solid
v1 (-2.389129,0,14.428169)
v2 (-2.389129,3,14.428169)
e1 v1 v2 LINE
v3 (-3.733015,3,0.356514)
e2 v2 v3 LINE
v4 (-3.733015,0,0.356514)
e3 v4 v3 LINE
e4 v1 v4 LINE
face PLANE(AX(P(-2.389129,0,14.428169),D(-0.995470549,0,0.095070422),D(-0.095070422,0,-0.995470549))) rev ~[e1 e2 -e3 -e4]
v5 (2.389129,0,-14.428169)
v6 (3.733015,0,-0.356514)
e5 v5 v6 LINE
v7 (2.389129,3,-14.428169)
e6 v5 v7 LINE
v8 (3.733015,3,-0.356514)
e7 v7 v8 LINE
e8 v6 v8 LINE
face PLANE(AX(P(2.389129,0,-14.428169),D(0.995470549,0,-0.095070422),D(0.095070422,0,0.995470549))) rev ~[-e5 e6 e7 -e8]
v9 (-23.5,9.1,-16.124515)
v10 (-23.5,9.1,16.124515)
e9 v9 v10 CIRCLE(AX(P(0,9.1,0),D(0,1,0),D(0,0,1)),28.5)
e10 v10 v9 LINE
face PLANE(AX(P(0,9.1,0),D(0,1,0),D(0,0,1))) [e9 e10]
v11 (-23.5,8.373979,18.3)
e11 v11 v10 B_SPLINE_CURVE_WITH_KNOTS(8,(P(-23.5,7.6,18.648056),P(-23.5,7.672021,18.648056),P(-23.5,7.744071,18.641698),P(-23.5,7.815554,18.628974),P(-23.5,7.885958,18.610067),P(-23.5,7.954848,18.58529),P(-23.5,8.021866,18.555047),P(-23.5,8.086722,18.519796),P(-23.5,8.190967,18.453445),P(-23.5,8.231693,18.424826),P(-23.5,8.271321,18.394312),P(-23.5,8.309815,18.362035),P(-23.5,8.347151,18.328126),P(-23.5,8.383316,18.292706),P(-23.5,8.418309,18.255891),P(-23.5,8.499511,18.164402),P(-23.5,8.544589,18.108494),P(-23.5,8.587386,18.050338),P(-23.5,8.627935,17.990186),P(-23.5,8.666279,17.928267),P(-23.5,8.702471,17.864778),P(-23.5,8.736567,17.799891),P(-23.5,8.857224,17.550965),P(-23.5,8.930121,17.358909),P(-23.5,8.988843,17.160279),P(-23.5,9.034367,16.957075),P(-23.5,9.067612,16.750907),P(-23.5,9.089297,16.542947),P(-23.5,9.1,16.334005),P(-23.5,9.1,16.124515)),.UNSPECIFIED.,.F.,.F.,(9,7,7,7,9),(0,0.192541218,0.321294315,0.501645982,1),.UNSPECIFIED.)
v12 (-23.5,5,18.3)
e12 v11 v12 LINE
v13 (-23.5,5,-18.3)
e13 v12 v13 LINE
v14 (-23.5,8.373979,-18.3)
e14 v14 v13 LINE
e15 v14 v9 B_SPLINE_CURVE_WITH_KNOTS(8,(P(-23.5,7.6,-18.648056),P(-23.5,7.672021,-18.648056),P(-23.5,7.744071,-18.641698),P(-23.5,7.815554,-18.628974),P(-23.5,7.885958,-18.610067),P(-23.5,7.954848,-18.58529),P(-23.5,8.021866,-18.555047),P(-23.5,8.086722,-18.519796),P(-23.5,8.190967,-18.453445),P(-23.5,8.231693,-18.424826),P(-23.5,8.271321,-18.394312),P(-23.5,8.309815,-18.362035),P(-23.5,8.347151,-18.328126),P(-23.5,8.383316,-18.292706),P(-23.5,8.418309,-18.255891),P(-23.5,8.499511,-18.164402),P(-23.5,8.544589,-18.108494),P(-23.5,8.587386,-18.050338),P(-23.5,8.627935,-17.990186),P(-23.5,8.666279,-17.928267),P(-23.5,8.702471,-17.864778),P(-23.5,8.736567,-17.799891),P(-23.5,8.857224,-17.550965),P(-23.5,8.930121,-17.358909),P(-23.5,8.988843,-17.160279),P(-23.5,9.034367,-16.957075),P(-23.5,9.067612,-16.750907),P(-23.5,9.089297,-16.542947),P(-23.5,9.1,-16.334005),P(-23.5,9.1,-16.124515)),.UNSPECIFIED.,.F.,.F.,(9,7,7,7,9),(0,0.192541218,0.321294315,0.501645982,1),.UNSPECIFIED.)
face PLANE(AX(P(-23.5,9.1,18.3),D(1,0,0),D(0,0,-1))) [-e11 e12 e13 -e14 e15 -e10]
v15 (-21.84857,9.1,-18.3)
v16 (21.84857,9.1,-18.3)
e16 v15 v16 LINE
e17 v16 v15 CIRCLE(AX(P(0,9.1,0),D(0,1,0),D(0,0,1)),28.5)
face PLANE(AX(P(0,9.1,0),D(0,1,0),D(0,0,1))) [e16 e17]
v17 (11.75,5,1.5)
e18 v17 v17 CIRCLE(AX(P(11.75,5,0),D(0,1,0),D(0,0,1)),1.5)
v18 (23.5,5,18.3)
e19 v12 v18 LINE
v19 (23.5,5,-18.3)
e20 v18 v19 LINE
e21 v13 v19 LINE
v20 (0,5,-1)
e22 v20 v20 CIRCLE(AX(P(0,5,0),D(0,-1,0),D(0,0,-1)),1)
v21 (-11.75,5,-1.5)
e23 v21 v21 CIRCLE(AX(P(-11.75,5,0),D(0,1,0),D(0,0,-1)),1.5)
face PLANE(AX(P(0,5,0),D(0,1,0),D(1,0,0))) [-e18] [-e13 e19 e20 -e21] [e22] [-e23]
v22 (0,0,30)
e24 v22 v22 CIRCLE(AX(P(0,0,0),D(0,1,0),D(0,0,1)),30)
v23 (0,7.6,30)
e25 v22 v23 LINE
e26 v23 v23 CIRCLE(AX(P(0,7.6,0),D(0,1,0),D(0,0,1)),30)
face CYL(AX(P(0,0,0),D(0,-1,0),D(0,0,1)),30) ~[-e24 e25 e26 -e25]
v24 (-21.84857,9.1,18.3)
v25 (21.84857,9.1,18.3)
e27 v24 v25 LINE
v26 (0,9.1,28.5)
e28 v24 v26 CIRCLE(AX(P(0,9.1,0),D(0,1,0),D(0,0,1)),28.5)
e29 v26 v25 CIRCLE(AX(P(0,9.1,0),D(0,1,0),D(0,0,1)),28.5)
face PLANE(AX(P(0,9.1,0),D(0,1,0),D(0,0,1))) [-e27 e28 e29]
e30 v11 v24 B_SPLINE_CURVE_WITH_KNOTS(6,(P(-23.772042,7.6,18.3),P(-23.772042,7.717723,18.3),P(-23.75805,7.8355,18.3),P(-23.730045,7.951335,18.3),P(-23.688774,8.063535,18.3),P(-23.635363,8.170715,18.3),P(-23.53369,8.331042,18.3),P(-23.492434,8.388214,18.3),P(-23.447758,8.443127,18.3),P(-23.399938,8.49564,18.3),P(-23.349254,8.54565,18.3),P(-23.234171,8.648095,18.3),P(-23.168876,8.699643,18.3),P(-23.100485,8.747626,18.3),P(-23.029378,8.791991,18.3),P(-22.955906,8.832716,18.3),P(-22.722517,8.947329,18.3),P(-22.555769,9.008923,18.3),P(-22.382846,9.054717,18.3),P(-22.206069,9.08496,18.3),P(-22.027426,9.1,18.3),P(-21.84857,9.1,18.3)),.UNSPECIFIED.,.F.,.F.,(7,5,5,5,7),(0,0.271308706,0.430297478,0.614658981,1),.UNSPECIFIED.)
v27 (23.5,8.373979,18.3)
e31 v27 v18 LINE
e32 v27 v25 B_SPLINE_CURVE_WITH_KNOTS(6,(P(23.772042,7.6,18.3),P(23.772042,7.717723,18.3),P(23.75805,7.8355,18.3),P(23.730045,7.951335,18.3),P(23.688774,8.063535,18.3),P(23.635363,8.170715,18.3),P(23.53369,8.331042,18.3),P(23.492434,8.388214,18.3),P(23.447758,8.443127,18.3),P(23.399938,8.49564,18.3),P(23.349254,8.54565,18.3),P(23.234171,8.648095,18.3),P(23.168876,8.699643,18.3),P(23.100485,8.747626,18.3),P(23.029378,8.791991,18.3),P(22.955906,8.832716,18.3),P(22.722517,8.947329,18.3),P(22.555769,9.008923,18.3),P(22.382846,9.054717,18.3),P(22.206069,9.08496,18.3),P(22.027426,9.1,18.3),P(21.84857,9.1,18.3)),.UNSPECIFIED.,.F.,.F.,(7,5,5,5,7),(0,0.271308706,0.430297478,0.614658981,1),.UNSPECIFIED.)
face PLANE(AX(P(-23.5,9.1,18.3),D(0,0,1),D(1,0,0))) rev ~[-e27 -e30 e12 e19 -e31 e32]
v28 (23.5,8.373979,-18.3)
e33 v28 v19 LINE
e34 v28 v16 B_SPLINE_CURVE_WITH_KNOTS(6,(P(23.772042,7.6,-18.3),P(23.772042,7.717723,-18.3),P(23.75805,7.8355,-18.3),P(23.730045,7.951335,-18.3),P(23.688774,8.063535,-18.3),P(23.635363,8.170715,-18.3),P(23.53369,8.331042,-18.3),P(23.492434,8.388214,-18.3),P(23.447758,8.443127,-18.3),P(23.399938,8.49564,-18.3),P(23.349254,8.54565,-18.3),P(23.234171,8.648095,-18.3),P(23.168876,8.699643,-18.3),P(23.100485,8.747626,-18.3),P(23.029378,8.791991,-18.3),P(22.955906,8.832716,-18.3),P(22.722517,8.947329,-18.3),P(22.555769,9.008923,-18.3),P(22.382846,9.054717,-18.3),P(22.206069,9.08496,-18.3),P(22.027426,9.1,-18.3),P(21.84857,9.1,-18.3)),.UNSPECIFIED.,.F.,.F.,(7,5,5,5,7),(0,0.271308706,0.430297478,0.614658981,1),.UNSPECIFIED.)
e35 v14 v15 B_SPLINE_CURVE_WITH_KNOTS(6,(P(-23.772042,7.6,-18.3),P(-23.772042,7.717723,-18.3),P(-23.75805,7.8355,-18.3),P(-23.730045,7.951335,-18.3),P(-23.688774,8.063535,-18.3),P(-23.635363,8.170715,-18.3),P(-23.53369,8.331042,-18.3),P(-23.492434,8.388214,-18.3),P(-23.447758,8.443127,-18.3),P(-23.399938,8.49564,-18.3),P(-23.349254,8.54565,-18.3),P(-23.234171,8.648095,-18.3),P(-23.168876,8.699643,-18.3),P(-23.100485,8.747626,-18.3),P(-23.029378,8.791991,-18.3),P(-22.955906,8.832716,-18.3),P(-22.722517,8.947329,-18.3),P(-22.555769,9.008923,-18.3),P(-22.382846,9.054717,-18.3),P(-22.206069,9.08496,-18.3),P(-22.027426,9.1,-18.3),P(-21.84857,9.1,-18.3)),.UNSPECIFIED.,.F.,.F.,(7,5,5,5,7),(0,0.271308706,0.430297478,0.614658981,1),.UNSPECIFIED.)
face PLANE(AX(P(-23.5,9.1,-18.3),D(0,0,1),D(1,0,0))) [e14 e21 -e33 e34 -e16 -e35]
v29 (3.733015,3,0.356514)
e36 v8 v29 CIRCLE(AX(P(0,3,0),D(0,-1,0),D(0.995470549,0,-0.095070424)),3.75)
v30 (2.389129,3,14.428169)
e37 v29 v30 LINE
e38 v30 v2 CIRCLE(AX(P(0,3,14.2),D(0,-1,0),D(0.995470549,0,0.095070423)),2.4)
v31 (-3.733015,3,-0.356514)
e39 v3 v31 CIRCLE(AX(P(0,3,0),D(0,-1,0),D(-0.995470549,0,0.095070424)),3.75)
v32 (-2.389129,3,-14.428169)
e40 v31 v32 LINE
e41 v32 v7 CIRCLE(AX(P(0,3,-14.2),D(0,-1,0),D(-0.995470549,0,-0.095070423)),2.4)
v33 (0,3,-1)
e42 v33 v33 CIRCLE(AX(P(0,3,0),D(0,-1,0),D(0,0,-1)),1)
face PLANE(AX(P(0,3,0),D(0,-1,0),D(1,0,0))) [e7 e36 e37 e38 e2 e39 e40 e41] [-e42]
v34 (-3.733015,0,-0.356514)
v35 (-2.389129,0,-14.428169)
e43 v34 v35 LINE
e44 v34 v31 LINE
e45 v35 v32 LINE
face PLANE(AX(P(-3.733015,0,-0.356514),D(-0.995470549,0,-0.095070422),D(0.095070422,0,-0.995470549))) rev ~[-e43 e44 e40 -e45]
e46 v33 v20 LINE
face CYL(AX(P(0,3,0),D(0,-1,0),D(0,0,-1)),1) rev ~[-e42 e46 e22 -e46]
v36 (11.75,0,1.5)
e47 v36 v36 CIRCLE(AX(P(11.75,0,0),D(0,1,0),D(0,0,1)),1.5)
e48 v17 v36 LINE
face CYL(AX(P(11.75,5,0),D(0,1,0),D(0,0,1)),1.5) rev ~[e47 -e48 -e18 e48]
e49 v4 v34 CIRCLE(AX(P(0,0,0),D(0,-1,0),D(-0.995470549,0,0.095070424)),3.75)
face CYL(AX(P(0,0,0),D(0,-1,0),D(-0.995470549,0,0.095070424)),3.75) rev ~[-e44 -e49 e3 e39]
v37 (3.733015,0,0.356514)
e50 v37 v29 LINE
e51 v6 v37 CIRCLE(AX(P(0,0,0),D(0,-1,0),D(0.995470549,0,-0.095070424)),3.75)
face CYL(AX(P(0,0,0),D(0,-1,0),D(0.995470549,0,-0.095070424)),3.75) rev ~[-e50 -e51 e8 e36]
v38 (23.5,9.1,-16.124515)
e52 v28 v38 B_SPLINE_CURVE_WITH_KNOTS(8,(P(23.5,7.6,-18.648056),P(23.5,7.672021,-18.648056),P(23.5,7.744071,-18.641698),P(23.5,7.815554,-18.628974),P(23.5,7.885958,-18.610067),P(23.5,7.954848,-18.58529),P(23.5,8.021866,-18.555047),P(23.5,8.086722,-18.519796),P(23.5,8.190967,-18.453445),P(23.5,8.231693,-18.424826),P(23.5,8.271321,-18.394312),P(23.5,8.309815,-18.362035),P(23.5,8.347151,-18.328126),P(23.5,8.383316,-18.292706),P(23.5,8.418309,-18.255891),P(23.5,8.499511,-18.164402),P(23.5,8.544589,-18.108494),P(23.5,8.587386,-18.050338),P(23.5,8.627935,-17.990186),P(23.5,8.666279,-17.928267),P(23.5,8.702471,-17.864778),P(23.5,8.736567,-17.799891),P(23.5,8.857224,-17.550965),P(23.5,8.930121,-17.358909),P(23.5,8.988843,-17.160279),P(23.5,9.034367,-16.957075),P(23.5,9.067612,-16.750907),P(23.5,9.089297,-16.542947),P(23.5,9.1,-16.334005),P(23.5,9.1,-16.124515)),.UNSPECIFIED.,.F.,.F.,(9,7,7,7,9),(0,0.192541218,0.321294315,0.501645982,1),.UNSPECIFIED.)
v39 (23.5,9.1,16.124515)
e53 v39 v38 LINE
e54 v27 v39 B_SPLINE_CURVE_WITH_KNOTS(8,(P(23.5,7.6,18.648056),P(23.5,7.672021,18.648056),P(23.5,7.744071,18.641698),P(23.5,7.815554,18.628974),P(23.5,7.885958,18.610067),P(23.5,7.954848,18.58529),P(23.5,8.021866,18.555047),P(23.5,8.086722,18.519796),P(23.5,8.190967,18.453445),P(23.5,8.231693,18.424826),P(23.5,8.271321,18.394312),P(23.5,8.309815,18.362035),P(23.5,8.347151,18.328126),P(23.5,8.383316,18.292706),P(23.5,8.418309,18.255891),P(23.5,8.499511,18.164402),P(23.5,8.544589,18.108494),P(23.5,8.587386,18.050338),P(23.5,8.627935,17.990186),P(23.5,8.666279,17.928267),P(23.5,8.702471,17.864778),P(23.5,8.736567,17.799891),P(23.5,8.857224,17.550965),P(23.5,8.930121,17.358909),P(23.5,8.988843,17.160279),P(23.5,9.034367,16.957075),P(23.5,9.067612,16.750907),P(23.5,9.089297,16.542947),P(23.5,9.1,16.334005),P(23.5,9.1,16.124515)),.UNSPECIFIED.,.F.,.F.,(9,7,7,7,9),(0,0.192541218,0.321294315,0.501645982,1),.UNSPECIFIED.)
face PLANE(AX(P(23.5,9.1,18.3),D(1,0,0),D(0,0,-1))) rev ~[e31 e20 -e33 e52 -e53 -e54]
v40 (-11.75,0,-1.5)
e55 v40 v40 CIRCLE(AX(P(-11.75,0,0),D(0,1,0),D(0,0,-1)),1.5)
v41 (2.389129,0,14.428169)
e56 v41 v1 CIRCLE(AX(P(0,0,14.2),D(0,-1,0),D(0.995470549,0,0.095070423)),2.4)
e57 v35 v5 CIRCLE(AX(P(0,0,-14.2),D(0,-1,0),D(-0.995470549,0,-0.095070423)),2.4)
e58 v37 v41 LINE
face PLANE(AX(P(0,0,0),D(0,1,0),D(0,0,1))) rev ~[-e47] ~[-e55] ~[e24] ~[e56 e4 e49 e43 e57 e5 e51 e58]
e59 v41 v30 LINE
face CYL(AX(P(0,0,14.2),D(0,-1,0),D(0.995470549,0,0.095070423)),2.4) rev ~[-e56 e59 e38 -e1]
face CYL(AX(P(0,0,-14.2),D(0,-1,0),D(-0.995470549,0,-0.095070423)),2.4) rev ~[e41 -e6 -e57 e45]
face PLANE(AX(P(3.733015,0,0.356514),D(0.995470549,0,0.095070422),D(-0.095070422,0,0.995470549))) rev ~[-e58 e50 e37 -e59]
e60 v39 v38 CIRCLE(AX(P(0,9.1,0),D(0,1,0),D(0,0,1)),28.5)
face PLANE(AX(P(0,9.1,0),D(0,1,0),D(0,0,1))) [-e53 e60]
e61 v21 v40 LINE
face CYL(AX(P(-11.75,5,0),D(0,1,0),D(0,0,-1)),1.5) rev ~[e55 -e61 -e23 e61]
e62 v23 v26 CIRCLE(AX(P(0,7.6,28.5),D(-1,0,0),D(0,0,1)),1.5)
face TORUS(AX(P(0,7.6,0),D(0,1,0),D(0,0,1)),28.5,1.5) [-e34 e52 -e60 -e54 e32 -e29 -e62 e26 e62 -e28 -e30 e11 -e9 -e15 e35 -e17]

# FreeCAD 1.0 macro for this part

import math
import FreeCAD as App
import Part
import Sketcher
from FreeCAD import Vector


def edges_at(feature, points):
    """Names of the edges that pass closest to the given points."""
    edges = feature.Shape.Edges
    near = lambda p: min(range(len(edges)), key=lambda i: edges[i].distToShape(Part.Vertex(*p))[0])
    return sorted({f"Edge{near(p) + 1}" for p in points})

doc = App.newDocument("Part")
body = doc.addObject("PartDesign::Body", "Body")

# Sketch on XZ plane
sketch1 = body.newObject("Sketcher::SketchObject", "Sketch")
sketch1.AttachmentSupport = (doc.getObject("XZ_Plane"), [""])
sketch1.MapMode = "FlatFace"
sketch1.addGeometry(Part.Circle(Vector(0, 0, 0), Vector(0, 0, 1), 30), False)
sketch1.addConstraint([
    Sketcher.Constraint("Coincident", 0, 3, -1, 1),
    Sketcher.Constraint("Diameter", 0, 60.0),
])
pad1 = body.newObject("PartDesign::Pad", "Pad")
pad1.Profile = sketch1
pad1.Length = 9.1
pad1.Reversed = True
doc.recompute()

fillet = body.newObject("PartDesign::Fillet", "Fillet")
fillet.Base = (pad1, edges_at(pad1, [(0, 9.1, -30)]))
fillet.Radius = 1.5

# Sketch on XZ plane
sketch2 = body.newObject("Sketcher::SketchObject", "Sketch001")
sketch2.AttachmentSupport = (doc.getObject("XZ_Plane"), [""])
sketch2.MapMode = "FlatFace"
sketch2.AttachmentOffset = App.Placement(Vector(0, 0, -9.1), App.Rotation())
sketch2.addGeometry([
    Part.LineSegment(Vector(-23.5, -18.3, 0), Vector(-23.5, 18.3, 0)),
    Part.LineSegment(Vector(-23.5, 18.3, 0), Vector(23.5, 18.3, 0)),
    Part.LineSegment(Vector(23.5, 18.3, 0), Vector(23.5, -18.3, 0)),
    Part.LineSegment(Vector(23.5, -18.3, 0), Vector(-23.5, -18.3, 0)),
], False)
sketch2.addConstraint([
    Sketcher.Constraint("Coincident", 0, 2, 1, 1),
    Sketcher.Constraint("Coincident", 1, 2, 2, 1),
    Sketcher.Constraint("Coincident", 2, 2, 3, 1),
    Sketcher.Constraint("Coincident", 3, 2, 0, 1),
    Sketcher.Constraint("Vertical", 0),
    Sketcher.Constraint("Horizontal", 1),
    Sketcher.Constraint("Vertical", 2),
    Sketcher.Constraint("Horizontal", 3),
    Sketcher.Constraint("Symmetric", 0, 2, 2, 2, -1, 1),
    Sketcher.Constraint("DistanceX", 1, 1, 1, 2, 47.0),
    Sketcher.Constraint("DistanceY", 0, 1, 0, 2, 36.6),
])
pocket1 = body.newObject("PartDesign::Pocket", "Pocket")
pocket1.Profile = sketch2
pocket1.Length = 4.1
pocket1.Reversed = True

# Sketch on XZ plane
sketch3 = body.newObject("Sketcher::SketchObject", "Sketch002")
sketch3.AttachmentSupport = (doc.getObject("XZ_Plane"), [""])
sketch3.MapMode = "FlatFace"
sketch3.AttachmentOffset = App.Placement(Vector(0, 0, -5), App.Rotation())
sketch3.addGeometry([
    Part.Circle(Vector(11.75, 0, 0), Vector(0, 0, 1), 1.5),
    Part.Circle(Vector(-11.75, 0, 0), Vector(0, 0, 1), 1.5),
], False)
sketch3.addConstraint([
    Sketcher.Constraint("Equal", 0, 1),
    Sketcher.Constraint("Symmetric", 0, 3, 1, 3, -1, 1),
    Sketcher.Constraint("PointOnObject", 0, 3, -1),
    Sketcher.Constraint("Diameter", 0, 3.0),
    Sketcher.Constraint("DistanceX", 1, 3, 0, 3, 23.5),
])
pocket2 = body.newObject("PartDesign::Pocket", "Pocket001")
pocket2.Profile = sketch3
pocket2.Type = "ThroughAll"
pocket2.Reversed = True

# Sketch on XZ plane
sketch4 = body.newObject("Sketcher::SketchObject", "Sketch003")
sketch4.AttachmentSupport = (doc.getObject("XZ_Plane"), [""])
sketch4.MapMode = "FlatFace"
sketch4.addGeometry([
    Part.LineSegment(Vector(-2.389129, 14.428169, 0), Vector(-3.733015, 0.356514, 0)),  # 0
    Part.ArcOfCircle(Part.Circle(Vector(0, 0, 0), Vector(0, 0, 1), 3.75), math.radians(174.544627), math.radians(185.455373)),  # 1
    Part.LineSegment(Vector(-3.733015, -0.356514, 0), Vector(-2.389129, -14.428169, 0)),  # 2
    Part.ArcOfCircle(Part.Circle(Vector(0, -14.2, 0), Vector(0, 0, 1), 2.4), math.radians(-174.544627), math.radians(-5.455373)),  # 3
    Part.LineSegment(Vector(2.389129, -14.428169, 0), Vector(3.733015, -0.356514, 0)),  # 4
    Part.ArcOfCircle(Part.Circle(Vector(0, 0, 0), Vector(0, 0, 1), 3.75), math.radians(-5.455373), math.radians(5.455373)),  # 5
    Part.LineSegment(Vector(3.733015, 0.356514, 0), Vector(2.389129, 14.428169, 0)),  # 6
    Part.ArcOfCircle(Part.Circle(Vector(0, 14.2, 0), Vector(0, 0, 1), 2.4), math.radians(5.455373), math.radians(174.544627)),  # 7
], False)
sketch4.addConstraint([
    Sketcher.Constraint("Tangent", 0, 2, 1, 1),
    Sketcher.Constraint("Tangent", 1, 2, 2, 1),
    Sketcher.Constraint("Tangent", 2, 2, 3, 1),
    Sketcher.Constraint("Tangent", 3, 2, 4, 1),
    Sketcher.Constraint("Tangent", 4, 2, 5, 1),
    Sketcher.Constraint("Tangent", 5, 2, 6, 1),
    Sketcher.Constraint("Tangent", 6, 2, 7, 1),
    Sketcher.Constraint("Tangent", 7, 2, 0, 1),
    Sketcher.Constraint("Coincident", 1, 3, -1, 1),
    Sketcher.Constraint("Coincident", 5, 3, -1, 1),
    Sketcher.Constraint("Equal", 1, 5),
    Sketcher.Constraint("Equal", 3, 7),
    Sketcher.Constraint("Symmetric", 3, 3, 7, 3, -1, 1),
    Sketcher.Constraint("PointOnObject", 3, 3, -2),
    Sketcher.Constraint("Radius", 3, 2.4),
    Sketcher.Constraint("Radius", 1, 3.75),
    Sketcher.Constraint("DistanceY", 3, 3, -1, 1, 14.2),
])
pocket3 = body.newObject("PartDesign::Pocket", "Pocket002")
pocket3.Profile = sketch4
pocket3.Length = 3

# Sketch on XZ plane
sketch5 = body.newObject("Sketcher::SketchObject", "Sketch004")
sketch5.AttachmentSupport = (doc.getObject("XZ_Plane"), [""])
sketch5.MapMode = "FlatFace"
sketch5.AttachmentOffset = App.Placement(Vector(0, 0, -3), App.Rotation())
sketch5.addGeometry(Part.Circle(Vector(0, 0, 0), Vector(0, 0, 1), 1), False)
sketch5.addConstraint([
    Sketcher.Constraint("Coincident", 0, 3, -1, 1),
    Sketcher.Constraint("Diameter", 0, 2.0),
])
pocket4 = body.newObject("PartDesign::Pocket", "Pocket003")
pocket4.Profile = sketch5
pocket4.Type = "ThroughAll"

doc.recompute()
